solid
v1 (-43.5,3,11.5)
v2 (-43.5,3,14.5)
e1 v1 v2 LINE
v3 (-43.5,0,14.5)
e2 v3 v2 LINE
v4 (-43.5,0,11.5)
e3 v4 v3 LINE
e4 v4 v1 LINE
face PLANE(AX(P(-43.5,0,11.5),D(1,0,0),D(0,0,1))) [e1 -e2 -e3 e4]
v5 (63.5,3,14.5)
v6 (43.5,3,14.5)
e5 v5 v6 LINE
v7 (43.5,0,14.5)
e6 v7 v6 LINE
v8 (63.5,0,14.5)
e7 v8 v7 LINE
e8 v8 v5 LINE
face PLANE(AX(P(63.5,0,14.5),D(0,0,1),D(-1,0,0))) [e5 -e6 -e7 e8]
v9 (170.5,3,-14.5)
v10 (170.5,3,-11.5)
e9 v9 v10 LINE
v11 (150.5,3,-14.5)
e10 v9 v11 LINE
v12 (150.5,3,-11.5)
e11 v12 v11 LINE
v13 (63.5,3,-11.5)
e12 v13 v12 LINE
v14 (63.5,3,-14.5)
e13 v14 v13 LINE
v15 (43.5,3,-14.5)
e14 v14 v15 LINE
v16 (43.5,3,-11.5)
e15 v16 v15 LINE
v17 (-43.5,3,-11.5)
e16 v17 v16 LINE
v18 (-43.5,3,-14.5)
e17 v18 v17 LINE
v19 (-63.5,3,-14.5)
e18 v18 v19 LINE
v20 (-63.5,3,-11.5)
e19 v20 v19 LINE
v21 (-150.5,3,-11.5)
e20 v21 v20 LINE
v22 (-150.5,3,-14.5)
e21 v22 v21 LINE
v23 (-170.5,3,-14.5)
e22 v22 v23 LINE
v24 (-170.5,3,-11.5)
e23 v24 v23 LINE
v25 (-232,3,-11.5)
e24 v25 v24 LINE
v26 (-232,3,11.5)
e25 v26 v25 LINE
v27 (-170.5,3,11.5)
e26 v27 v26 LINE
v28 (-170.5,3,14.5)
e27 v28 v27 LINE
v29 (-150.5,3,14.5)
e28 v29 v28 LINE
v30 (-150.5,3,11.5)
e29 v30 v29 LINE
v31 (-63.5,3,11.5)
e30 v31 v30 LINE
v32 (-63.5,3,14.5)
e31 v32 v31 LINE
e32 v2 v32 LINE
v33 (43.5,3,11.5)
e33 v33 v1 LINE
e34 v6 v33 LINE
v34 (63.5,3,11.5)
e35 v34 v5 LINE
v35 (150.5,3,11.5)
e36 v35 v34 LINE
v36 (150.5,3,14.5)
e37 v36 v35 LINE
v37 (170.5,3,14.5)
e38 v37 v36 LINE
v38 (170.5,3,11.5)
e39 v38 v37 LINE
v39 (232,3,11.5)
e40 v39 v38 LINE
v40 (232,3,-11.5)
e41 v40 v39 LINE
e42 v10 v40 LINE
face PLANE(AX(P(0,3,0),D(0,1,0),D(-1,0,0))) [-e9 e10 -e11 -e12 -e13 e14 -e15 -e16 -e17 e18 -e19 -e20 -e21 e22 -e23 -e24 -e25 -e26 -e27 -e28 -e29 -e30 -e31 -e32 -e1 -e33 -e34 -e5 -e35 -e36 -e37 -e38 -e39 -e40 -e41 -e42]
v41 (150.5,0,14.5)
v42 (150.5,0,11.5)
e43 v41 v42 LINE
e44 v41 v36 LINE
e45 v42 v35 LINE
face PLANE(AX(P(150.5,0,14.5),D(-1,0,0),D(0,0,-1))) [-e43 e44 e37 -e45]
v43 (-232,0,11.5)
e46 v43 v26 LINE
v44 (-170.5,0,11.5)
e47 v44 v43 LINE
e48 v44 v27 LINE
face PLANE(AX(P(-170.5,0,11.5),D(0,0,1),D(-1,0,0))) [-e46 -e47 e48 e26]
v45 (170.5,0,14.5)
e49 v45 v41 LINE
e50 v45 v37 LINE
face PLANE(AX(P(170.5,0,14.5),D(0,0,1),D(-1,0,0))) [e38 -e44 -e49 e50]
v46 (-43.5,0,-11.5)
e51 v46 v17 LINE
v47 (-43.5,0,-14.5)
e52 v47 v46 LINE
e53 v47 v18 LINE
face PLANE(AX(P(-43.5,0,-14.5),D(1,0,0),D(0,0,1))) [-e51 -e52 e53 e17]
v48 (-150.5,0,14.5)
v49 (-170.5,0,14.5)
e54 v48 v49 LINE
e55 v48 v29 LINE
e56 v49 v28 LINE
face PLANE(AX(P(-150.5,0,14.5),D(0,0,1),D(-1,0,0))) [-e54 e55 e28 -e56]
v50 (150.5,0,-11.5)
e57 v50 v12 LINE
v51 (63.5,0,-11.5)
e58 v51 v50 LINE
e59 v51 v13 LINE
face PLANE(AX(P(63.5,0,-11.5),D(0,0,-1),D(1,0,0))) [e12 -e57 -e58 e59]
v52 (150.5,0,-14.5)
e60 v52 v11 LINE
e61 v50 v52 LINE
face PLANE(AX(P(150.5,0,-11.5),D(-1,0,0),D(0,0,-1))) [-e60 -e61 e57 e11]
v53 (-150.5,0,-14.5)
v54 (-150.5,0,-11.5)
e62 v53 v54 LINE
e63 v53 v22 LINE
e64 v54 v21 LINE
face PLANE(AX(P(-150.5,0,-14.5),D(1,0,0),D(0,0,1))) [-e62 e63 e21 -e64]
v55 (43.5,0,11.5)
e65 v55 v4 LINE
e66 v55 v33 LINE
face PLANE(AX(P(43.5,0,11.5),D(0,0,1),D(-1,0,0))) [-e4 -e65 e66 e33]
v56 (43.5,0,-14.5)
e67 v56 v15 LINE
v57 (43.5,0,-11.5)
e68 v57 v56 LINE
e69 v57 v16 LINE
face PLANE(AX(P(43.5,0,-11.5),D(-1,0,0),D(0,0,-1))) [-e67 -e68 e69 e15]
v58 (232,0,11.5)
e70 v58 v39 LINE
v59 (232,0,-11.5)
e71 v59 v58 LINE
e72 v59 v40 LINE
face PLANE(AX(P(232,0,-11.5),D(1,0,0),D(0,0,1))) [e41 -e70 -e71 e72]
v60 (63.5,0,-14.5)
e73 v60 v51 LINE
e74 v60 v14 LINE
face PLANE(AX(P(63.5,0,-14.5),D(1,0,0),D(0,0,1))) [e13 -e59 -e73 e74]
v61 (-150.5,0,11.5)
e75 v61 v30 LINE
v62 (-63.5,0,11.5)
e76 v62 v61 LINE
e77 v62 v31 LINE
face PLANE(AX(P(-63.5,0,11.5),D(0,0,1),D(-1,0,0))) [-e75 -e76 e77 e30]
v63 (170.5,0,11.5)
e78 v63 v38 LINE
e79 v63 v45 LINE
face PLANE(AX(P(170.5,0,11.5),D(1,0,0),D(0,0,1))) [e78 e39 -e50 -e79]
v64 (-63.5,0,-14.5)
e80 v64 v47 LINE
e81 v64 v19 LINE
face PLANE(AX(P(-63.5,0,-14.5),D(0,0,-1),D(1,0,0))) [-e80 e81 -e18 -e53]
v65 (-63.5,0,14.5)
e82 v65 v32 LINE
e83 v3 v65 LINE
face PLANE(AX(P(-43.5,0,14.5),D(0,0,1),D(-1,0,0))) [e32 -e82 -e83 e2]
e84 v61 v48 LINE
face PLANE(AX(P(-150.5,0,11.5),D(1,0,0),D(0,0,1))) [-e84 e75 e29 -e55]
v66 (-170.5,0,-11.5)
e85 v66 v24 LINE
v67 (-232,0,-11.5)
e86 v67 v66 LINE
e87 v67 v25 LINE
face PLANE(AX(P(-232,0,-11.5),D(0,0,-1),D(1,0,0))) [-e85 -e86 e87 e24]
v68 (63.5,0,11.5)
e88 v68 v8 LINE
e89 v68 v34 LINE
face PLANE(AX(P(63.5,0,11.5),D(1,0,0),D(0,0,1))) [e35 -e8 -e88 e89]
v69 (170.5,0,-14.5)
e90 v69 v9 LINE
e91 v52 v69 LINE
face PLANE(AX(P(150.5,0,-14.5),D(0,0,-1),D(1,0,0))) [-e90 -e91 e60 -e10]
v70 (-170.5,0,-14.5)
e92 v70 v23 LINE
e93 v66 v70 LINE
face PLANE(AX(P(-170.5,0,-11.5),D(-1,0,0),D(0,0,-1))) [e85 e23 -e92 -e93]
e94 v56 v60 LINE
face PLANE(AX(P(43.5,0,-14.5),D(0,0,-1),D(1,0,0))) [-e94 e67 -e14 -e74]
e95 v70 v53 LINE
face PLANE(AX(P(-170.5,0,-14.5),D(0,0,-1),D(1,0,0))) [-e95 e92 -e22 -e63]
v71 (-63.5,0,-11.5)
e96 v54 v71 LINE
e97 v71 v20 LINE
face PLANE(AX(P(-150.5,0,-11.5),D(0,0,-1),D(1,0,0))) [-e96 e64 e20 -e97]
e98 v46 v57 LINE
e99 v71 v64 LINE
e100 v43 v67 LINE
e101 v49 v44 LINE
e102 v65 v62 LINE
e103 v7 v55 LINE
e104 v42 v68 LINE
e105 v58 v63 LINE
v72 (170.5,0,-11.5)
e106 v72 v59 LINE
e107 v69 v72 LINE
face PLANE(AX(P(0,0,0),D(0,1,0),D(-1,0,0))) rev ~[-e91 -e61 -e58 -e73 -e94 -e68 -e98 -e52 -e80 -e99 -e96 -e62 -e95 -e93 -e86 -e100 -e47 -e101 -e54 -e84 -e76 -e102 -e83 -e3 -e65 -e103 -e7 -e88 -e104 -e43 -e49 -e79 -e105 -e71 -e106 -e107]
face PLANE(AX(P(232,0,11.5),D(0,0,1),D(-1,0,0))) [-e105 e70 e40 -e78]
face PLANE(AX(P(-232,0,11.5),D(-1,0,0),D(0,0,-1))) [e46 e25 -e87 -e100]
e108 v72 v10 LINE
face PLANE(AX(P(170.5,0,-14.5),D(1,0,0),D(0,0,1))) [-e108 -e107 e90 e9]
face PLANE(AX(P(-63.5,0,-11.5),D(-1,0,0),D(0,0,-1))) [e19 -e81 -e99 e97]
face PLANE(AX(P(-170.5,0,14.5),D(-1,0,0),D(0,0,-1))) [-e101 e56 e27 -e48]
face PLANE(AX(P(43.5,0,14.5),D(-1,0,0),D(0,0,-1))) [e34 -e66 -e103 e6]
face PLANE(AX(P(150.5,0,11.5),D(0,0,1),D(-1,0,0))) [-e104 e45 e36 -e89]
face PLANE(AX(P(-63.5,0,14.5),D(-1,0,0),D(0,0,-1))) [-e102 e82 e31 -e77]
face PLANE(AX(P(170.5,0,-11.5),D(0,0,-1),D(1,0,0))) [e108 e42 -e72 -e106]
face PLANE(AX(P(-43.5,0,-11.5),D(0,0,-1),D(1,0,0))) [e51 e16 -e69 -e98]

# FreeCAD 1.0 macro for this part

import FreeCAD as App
import Part
import Sketcher


def add_polygon(sketch, points):
    """Adds a closed chain of lines whose ends are joined by coincident constraints."""
    first, n = sketch.GeometryCount, len(points)
    for a, b in zip(points, points[1:] + points[:1]):
        sketch.addGeometry(Part.LineSegment(App.Vector(*a, 0), App.Vector(*b, 0)), False)
    for i in range(n):
        sketch.addConstraint(Sketcher.Constraint("Coincident", first + i, 2, first + (i + 1) % n, 1))

doc = App.newDocument("Part")
body = doc.addObject("PartDesign::Body", "Body")

sketch1 = body.newObject("Sketcher::SketchObject", "Sketch")
sketch1.AttachmentSupport = (doc.getObject("XZ_Plane"), [""])
sketch1.MapMode = "FlatFace"
add_polygon(sketch1, [(-170.5, -11.5), (-232, -11.5), (-232, 11.5), (-170.5, 11.5), (-170.5, 14.5), (-150.5, 14.5), (-150.5, 11.5), (-63.5, 11.5), (-63.5, 14.5), (-43.5, 14.5), (-43.5, 11.5), (43.5, 11.5), (43.5, 14.5), (63.5, 14.5), (63.5, 11.5), (150.5, 11.5), (150.5, 14.5), (170.5, 14.5), (170.5, 11.5), (232, 11.5), (232, -11.5), (170.5, -11.5), (170.5, -14.5), (150.5, -14.5), (150.5, -11.5), (63.5, -11.5), (63.5, -14.5), (43.5, -14.5), (43.5, -11.5), (-43.5, -11.5), (-43.5, -14.5), (-63.5, -14.5), (-63.5, -11.5), (-150.5, -11.5), (-150.5, -14.5), (-170.5, -14.5)])
sketch1.addConstraint([
    Sketcher.Constraint("Horizontal", 0),
    Sketcher.Constraint("Vertical", 1),
    Sketcher.Constraint("Horizontal", 2),
    Sketcher.Constraint("Vertical", 3),
    Sketcher.Constraint("Horizontal", 4),
    Sketcher.Constraint("Vertical", 5),
    Sketcher.Constraint("Horizontal", 6),
    Sketcher.Constraint("Vertical", 7),
    Sketcher.Constraint("Horizontal", 8),
    Sketcher.Constraint("Vertical", 9),
    Sketcher.Constraint("Horizontal", 10),
    Sketcher.Constraint("Vertical", 11),
    Sketcher.Constraint("Horizontal", 12),
    Sketcher.Constraint("Vertical", 13),
    Sketcher.Constraint("Horizontal", 14),
    Sketcher.Constraint("Vertical", 15),
    Sketcher.Constraint("Horizontal", 16),
    Sketcher.Constraint("Vertical", 17),
    Sketcher.Constraint("Horizontal", 18),
    Sketcher.Constraint("Vertical", 19),
    Sketcher.Constraint("Horizontal", 20),
    Sketcher.Constraint("Vertical", 21),
    Sketcher.Constraint("Horizontal", 22),
    Sketcher.Constraint("Vertical", 23),
    Sketcher.Constraint("Horizontal", 24),
    Sketcher.Constraint("Vertical", 25),
    Sketcher.Constraint("Horizontal", 26),
    Sketcher.Constraint("Vertical", 27),
    Sketcher.Constraint("Horizontal", 28),
    Sketcher.Constraint("Vertical", 29),
    Sketcher.Constraint("Horizontal", 30),
    Sketcher.Constraint("Vertical", 31),
    Sketcher.Constraint("Horizontal", 32),
    Sketcher.Constraint("Vertical", 33),
    Sketcher.Constraint("Horizontal", 34),
    Sketcher.Constraint("Vertical", 35),
    Sketcher.Constraint("Symmetric", 0, 2, 18, 2, -1, 1),
    Sketcher.Constraint("Symmetric", 2, 2, 20, 2, -1, 1),
    Sketcher.Constraint("Symmetric", 4, 2, 22, 2, -1, 1),
    Sketcher.Constraint("Symmetric", 6, 2, 24, 2, -1, 1),
    Sketcher.Constraint("Symmetric", 8, 2, 26, 2, -1, 1),
    Sketcher.Constraint("Symmetric", 10, 2, 28, 2, -1, 1),
    Sketcher.Constraint("Symmetric", 12, 2, 30, 2, -1, 1),
    Sketcher.Constraint("Symmetric", 14, 2, 32, 2, -1, 1),
    Sketcher.Constraint("Symmetric", 16, 2, 34, 2, -1, 1),
    Sketcher.Constraint("Symmetric", 8, 2, 11, 2, -2),
    Sketcher.Constraint("Symmetric", 6, 2, 13, 2, -2),
    Sketcher.Constraint("Symmetric", 4, 2, 15, 2, -2),
    Sketcher.Constraint("Symmetric", 2, 2, 17, 2, -2),
    Sketcher.Constraint("Horizontal", 2, 2, 5, 2),
    Sketcher.Constraint("Horizontal", 4, 2, 7, 2),
    Sketcher.Constraint("Horizontal", 6, 2, 9, 2),
    Sketcher.Constraint("Equal", 4, 8),
    Sketcher.Constraint("Equal", 6, 10),
    Sketcher.Constraint("DistanceX", 4, 1, 4, 2, 20.0),
    Sketcher.Constraint("DistanceY", 1, 1, 1, 2, 23.0),
    Sketcher.Constraint("DistanceY", 3, 1, 3, 2, 3.0),
    Sketcher.Constraint("DistanceX", 2, 2, 6, 2, 107.0),
    Sketcher.Constraint("DistanceX", 0, 2, 0, 1, 61.5),
])
pad1 = body.newObject("PartDesign::Pad", "Pad")
pad1.Profile = sketch1
pad1.Length = 3
pad1.Reversed = True

doc.recompute()
